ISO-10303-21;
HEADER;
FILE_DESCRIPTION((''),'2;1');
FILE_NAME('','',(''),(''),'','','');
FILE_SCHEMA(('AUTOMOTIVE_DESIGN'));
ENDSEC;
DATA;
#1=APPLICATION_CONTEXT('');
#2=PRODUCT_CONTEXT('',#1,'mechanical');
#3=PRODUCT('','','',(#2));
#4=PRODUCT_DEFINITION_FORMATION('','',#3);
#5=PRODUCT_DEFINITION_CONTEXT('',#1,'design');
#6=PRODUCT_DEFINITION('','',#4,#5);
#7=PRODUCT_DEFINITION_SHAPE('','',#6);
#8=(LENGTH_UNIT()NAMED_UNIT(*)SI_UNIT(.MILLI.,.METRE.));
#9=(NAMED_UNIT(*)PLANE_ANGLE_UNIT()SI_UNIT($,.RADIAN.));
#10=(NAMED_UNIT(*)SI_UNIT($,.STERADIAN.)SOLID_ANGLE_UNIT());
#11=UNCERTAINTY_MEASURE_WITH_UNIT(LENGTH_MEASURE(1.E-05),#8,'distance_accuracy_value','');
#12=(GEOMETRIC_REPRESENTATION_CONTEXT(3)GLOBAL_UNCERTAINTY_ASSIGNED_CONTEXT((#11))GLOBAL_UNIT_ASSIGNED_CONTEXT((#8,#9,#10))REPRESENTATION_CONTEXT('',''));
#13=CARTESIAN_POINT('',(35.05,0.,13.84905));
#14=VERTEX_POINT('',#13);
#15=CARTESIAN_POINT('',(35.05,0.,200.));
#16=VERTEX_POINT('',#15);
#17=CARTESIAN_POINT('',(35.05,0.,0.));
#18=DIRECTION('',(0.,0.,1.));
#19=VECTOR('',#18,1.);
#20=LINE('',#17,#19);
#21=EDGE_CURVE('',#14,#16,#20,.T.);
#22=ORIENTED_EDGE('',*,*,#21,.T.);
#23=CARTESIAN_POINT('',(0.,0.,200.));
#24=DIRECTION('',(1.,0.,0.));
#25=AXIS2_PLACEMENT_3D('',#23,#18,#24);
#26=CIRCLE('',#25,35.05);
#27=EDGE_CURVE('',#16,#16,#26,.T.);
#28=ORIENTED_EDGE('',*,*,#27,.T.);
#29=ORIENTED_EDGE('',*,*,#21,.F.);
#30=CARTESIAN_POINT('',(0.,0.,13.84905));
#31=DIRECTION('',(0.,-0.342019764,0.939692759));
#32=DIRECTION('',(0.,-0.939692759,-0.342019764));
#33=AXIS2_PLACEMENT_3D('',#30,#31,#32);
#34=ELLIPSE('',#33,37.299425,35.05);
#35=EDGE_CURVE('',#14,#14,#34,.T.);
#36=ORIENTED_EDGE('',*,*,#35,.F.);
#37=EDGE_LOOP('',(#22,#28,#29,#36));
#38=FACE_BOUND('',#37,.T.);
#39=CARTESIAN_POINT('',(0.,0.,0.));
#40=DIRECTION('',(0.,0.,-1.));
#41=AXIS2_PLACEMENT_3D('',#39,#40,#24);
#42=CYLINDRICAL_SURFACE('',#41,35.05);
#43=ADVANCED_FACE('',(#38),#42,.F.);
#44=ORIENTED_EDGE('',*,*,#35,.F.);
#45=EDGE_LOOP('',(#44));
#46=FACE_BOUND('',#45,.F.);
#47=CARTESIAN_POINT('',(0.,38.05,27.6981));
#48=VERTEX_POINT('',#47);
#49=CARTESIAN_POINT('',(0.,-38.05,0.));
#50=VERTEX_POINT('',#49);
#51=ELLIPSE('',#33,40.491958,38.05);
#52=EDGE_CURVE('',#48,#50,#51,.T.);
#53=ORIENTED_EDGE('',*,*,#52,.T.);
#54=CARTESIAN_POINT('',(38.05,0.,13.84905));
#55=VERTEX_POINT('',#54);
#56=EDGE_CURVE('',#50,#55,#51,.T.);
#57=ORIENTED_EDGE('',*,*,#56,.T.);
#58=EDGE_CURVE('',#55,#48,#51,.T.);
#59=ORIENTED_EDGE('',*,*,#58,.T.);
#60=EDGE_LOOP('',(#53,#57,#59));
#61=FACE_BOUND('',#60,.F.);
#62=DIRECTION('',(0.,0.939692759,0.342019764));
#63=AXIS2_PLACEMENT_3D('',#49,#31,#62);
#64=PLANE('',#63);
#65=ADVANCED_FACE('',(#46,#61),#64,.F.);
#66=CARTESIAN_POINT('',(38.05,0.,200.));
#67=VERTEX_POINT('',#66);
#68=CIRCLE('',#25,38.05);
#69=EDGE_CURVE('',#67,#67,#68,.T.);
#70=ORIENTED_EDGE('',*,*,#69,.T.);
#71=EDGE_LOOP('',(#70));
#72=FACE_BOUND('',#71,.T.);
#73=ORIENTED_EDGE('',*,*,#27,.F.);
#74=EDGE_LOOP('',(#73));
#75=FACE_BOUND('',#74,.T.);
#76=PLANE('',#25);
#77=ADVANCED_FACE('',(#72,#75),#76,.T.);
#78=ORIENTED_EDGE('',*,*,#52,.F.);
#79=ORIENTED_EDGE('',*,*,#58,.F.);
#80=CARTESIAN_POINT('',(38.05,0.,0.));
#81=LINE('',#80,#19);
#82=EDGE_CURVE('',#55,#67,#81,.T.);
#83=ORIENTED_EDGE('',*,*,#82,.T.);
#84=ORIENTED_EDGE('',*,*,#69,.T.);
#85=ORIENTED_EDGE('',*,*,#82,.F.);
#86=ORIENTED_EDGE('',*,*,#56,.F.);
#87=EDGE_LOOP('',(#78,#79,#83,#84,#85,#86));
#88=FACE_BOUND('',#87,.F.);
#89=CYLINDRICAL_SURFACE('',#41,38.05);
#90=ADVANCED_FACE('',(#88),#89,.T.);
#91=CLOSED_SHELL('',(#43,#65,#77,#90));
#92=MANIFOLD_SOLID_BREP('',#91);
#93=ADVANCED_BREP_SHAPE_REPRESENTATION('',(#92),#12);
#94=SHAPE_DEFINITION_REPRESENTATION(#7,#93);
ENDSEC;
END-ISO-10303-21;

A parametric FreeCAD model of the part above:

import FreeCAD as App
import Part
import Sketcher
Q = App.Units.Quantity


def add_polygon(sketch, points):
    """Adds a closed chain of lines whose ends are joined by coincident constraints."""
    first, n = sketch.GeometryCount, len(points)
    for a, b in zip(points, points[1:] + points[:1]):
        sketch.addGeometry(Part.LineSegment(App.Vector(*a, 0), App.Vector(*b, 0)), False)
    for i in range(n):
        sketch.addConstraint(Sketcher.Constraint("Coincident", first + i, 2, first + (i + 1) % n, 1))

doc = App.newDocument("Part")
params = doc.addObject("Spreadsheet::Sheet", "Params")
for row, (alias, value) in enumerate([
    ("sketch1_diameter", "76.1 mm"),
    ("sketch1_diameter2", "70.1 mm"),
    ("pad1_length", "200 mm"),
    ("sketch2_width", "76.1 mm"),
    ("pocket1_length", "300 mm"),
], start=1):
    params.set(f"A{row}", alias)
    params.set(f"B{row}", "=" + value)
    params.setAlias(f"B{row}", alias)

body = doc.addObject("PartDesign::Body", "Body")

# Sketch on XY plane
sketch1 = doc.addObject("Sketcher::SketchObject", "Sketch")
body.addObject(sketch1)
sketch1.AttachmentSupport = (doc.XY_Plane, [""])
sketch1.MapMode = "FlatFace"
sketch1.addGeometry([
    Part.Circle(App.Vector(0, 0, 0), App.Vector(0, 0, 1), 38.05),
    Part.Circle(App.Vector(0, 0, 0), App.Vector(0, 0, 1), 35.05),
], False)
sketch1.addConstraint([
    Sketcher.Constraint("Coincident", 0, 3, -1, 1),
    Sketcher.Constraint("Coincident", 1, 3, -1, 1),
    Sketcher.Constraint("Diameter", 0, Q("76.1 mm")),
    Sketcher.Constraint("Diameter", 1, Q("70.1 mm")),
])
sketch1.setExpression("Constraints[2]", "Params.sketch1_diameter")
sketch1.setExpression("Constraints[3]", "Params.sketch1_diameter2")
pad1 = doc.addObject("PartDesign::Pad", "Pad")
body.addObject(pad1)
pad1.Profile = sketch1
pad1.setExpression("Length", "Params.pad1_length")

# Sketch on YZ plane
sketch2 = doc.addObject("Sketcher::SketchObject", "Sketch001")
body.addObject(sketch2)
sketch2.AttachmentSupport = (doc.YZ_Plane, [""])
sketch2.MapMode = "FlatFace"
add_polygon(sketch2, [(-38.05, 0), (38.05, 0), (38.05, 27.6981)])  # lines 0-2
sketch2.addConstraint([
    Sketcher.Constraint("Horizontal", 0),
    Sketcher.Constraint("Vertical", 1),
    Sketcher.Constraint("Symmetric", 0, 2, 2, 2, -1, 1),
    Sketcher.Constraint("Angle", 2, Q("-160 deg")),
    Sketcher.Constraint("DistanceX", 0, 1, 0, 2, Q("76.1 mm")),
])
sketch2.setExpression("Constraints[7]", "Params.sketch2_width")
pocket1 = doc.addObject("PartDesign::Pocket", "Pocket")
body.addObject(pocket1)
pocket1.Profile = sketch2
pocket1.setExpression("Length", "Params.pocket1_length")
pocket1.Midplane = True

doc.recompute()
